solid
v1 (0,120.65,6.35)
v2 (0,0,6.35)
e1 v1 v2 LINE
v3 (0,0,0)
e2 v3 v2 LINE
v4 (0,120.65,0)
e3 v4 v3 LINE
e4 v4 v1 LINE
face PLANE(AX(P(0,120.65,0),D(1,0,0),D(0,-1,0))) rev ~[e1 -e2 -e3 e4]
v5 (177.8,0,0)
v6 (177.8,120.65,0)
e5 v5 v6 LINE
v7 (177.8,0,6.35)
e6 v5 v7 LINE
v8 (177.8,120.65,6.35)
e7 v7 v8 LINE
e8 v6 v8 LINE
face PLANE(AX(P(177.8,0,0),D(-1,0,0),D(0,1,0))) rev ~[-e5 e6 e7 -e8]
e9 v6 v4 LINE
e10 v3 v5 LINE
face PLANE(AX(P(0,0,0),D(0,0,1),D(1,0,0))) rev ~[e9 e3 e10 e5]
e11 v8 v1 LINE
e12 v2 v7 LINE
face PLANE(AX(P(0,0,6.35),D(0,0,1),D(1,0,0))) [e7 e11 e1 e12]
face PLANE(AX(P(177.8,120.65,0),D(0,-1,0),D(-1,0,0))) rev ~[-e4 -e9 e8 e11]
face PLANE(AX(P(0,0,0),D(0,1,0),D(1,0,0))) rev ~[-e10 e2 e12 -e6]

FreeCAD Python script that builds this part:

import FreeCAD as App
import Part
import Sketcher

V = App.Vector
Q = App.Units.Quantity


def add_polygon(sketch, points):
    """Adds a closed chain of lines whose ends are joined by coincident constraints."""
    first, n = sketch.GeometryCount, len(points)
    for a, b in zip(points, points[1:] + points[:1]):
        sketch.addGeometry(Part.LineSegment(App.Vector(*a, 0), App.Vector(*b, 0)), False)
    for i in range(n):
        sketch.addConstraint(Sketcher.Constraint("Coincident", first + i, 2, first + (i + 1) % n, 1))

doc = App.newDocument("Part")
body = doc.addObject("PartDesign::Body", "Body")

# Sketch on XY plane
sketch1 = body.newObject("Sketcher::SketchObject", "Sketch")
sketch1.AttachmentSupport = (doc.getObject("XY_Plane"), [""])
sketch1.MapMode = "FlatFace"
add_polygon(sketch1, [(0, 121), (0, 0), (178, 0), (178, 121)])  # lines 0-3
sketch1.addConstraint([
    Sketcher.Constraint("Vertical", 0),
    Sketcher.Constraint("Horizontal", 1),
    Sketcher.Constraint("Vertical", 2),
    Sketcher.Constraint("Horizontal", 3),
    Sketcher.Constraint("Coincident", 0, 2, -1, 1),
    Sketcher.Constraint("DistanceX", 1, 1, 1, 2, Q("7 in")),
    Sketcher.Constraint("DistanceY", 0, 2, 0, 1, Q("4.75 in")),
])
pad1 = body.newObject("PartDesign::Pad", "Pad")
pad1.Profile = sketch1
pad1.Length = Q("0.25 in")

doc.recompute()
